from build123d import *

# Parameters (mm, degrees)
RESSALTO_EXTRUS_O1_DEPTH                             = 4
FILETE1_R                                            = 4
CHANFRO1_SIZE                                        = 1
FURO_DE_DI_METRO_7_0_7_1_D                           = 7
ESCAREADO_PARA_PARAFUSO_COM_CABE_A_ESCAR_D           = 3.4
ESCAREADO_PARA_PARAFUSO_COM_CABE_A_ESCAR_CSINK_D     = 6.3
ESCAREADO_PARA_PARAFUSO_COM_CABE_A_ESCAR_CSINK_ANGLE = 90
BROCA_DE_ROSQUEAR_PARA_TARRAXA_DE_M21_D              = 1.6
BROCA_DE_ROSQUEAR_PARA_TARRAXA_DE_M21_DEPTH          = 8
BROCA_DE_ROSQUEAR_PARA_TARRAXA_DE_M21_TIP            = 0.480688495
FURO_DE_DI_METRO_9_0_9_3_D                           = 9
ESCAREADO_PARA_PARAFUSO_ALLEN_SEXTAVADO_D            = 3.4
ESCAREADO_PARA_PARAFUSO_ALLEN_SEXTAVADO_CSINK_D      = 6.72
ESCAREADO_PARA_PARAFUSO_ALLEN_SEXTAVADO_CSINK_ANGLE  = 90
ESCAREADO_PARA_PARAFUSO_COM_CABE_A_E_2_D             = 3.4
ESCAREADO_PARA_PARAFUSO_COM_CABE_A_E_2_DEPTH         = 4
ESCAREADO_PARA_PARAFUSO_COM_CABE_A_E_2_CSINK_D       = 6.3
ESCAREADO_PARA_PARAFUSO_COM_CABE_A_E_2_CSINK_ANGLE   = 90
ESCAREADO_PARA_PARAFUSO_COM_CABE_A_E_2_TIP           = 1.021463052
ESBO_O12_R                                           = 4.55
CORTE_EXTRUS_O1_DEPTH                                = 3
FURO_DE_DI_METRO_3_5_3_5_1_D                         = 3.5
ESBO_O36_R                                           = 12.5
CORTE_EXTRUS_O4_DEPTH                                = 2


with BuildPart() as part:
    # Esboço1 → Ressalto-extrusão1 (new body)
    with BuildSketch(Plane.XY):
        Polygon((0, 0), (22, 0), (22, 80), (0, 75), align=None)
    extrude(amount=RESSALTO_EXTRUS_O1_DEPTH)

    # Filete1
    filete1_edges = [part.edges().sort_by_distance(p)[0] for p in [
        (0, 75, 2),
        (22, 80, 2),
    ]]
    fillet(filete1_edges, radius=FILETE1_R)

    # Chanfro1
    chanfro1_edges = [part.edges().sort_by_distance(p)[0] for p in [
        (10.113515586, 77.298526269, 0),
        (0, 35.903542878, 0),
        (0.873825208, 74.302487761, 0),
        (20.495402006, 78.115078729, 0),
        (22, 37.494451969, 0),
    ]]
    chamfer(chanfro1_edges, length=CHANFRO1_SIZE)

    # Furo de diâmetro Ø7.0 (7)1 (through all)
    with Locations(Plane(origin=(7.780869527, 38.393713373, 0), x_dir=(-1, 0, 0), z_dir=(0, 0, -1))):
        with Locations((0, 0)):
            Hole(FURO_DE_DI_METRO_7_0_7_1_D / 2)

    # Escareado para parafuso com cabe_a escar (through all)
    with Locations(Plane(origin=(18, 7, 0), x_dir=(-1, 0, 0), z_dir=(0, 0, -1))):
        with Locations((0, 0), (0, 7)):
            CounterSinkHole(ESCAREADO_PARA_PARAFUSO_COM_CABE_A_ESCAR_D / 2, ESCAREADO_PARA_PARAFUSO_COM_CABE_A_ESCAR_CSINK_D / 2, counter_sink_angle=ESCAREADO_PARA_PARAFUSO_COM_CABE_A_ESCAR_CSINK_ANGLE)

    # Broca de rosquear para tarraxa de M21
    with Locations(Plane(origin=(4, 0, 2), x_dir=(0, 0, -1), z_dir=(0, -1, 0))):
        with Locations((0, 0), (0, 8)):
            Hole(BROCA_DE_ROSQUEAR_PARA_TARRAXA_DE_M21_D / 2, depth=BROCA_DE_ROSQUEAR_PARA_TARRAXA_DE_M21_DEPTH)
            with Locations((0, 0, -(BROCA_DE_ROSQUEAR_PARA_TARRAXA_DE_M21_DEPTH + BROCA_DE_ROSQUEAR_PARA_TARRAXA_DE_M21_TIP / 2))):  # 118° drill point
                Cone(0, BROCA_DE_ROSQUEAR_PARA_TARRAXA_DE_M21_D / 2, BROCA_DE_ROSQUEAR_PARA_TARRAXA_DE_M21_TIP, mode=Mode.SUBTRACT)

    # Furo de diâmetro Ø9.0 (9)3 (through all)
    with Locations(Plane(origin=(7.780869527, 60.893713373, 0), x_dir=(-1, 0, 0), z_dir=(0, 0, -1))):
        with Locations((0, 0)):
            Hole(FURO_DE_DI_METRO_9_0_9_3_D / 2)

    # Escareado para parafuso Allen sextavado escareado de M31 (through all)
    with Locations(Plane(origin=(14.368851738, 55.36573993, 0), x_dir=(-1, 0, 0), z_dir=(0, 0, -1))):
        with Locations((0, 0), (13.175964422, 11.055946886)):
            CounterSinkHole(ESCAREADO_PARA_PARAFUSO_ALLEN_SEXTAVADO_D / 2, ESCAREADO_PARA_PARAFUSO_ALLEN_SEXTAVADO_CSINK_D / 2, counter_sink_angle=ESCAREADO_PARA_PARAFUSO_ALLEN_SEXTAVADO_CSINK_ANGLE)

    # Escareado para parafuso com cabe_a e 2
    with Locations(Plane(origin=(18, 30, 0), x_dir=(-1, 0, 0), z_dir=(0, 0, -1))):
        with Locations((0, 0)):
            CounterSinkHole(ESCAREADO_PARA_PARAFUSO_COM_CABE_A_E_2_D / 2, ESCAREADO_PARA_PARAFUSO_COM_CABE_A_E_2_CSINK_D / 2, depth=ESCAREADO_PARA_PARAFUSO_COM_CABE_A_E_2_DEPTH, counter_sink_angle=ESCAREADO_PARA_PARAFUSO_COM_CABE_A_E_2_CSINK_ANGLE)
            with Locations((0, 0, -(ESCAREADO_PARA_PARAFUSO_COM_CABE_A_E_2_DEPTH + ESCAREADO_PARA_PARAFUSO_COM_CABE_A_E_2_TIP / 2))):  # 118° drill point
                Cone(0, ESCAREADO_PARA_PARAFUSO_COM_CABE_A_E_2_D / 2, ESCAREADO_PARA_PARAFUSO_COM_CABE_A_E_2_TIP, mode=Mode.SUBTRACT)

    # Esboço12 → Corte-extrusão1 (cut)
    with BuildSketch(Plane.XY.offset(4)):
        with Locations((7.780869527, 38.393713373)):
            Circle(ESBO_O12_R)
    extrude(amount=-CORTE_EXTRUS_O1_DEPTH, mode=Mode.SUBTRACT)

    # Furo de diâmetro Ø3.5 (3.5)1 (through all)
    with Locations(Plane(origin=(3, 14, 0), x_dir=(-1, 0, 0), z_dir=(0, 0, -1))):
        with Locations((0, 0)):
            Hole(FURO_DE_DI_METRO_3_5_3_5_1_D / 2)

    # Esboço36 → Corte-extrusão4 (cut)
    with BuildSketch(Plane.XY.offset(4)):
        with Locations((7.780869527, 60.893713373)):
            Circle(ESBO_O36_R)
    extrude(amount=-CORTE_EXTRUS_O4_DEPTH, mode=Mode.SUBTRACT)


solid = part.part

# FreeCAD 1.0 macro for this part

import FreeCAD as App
import Part
import Sketcher


def edges_at(feature, points):
    """Names of the edges that pass closest to the given points."""
    edges = feature.Shape.Edges
    near = lambda p: min(range(len(edges)), key=lambda i: edges[i].distToShape(Part.Vertex(*p))[0])
    return sorted({f"Edge{near(p) + 1}" for p in points})

doc = App.newDocument("Part")
body = doc.addObject("PartDesign::Body", "Body")

sketch1 = body.newObject("Sketcher::SketchObject", "Sketch")
sketch1.AttachmentSupport = (doc.getObject("XY_Plane"), [""])
sketch1.MapMode = "FlatFace"
sketch1.addGeometry(Part.LineSegment(App.Vector(0, 0, 0), App.Vector(22, 0, 0)), False)
sketch1.addGeometry(Part.LineSegment(App.Vector(22, 0, 0), App.Vector(22, 80, 0)), False)
sketch1.addGeometry(Part.LineSegment(App.Vector(22, 80, 0), App.Vector(0, 75, 0)), False)
sketch1.addGeometry(Part.LineSegment(App.Vector(0, 75, 0), App.Vector(0, 0, 0)), False)
sketch1.addConstraint(Sketcher.Constraint("Coincident", 0, 2, 1, 1))
sketch1.addConstraint(Sketcher.Constraint("Coincident", 1, 2, 2, 1))
sketch1.addConstraint(Sketcher.Constraint("Coincident", 2, 2, 3, 1))
sketch1.addConstraint(Sketcher.Constraint("Coincident", 3, 2, 0, 1))
sketch1.addConstraint(Sketcher.Constraint("Horizontal", 0))
sketch1.addConstraint(Sketcher.Constraint("Vertical", 1))
sketch1.addConstraint(Sketcher.Constraint("Vertical", 3))
sketch1.addConstraint(Sketcher.Constraint("Coincident", 3, 2, -1, 1))
sketch1.addConstraint(Sketcher.Constraint("DistanceX", 0, 1, 0, 2, 22.0))
sketch1.addConstraint(Sketcher.Constraint("DistanceY", 1, 1, 1, 2, 80.0))
sketch1.addConstraint(Sketcher.Constraint("DistanceY", 3, 2, 3, 1, 75.0))
pad1 = body.newObject("PartDesign::Pad", "Pad")
pad1.Profile = sketch1
pad1.Length = 4
doc.recompute()

fillet = body.newObject("PartDesign::Fillet", "Fillet")
fillet.Base = (pad1, edges_at(pad1, [(0, 75, 2), (22, 80, 2)]))
fillet.Radius = 4
doc.recompute()

chamfer = body.newObject("PartDesign::Chamfer", "Chamfer")
chamfer.Base = (fillet, edges_at(fillet, [
    (10.114, 77.299, 0),
    (0, 35.904, 0),
    (0.874, 74.302, 0),
    (20.495, 78.115, 0),
    (22, 37.494, 0),
]))
chamfer.Size = 1

sketch2 = body.newObject("Sketcher::SketchObject", "Sketch001")
sketch2.AttachmentSupport = (doc.getObject("XY_Plane"), [""])
sketch2.MapMode = "FlatFace"
sketch2.addGeometry(Part.Circle(App.Vector(7.8, 38.4, 0), App.Vector(0, 0, 1), 3.5), False)
sketch2.addConstraint(Sketcher.Constraint("Diameter", 0, 7.0))
sketch2.addConstraint(Sketcher.Constraint("DistanceX", -1, 1, 0, 3, 7.78087))
sketch2.addConstraint(Sketcher.Constraint("DistanceY", -1, 1, 0, 3, 38.393713))
doc.recompute()
hole = body.newObject("PartDesign::Hole", "Hole")
hole.Profile = sketch2
hole.ThreadType = "None"
hole.Diameter = 7
hole.DepthType = "ThroughAll"
hole.Reversed = True

sketch3 = body.newObject("Sketcher::SketchObject", "Sketch002")
sketch3.AttachmentSupport = (doc.getObject("XY_Plane"), [""])
sketch3.MapMode = "FlatFace"
sketch3.addGeometry(Part.Circle(App.Vector(18, 7, 0), App.Vector(0, 0, 1), 1.7), False)
sketch3.addGeometry(Part.Circle(App.Vector(18, 14, 0), App.Vector(0, 0, 1), 1.7), False)
sketch3.addConstraint(Sketcher.Constraint("Equal", 0, 1))
sketch3.addConstraint(Sketcher.Constraint("Vertical", 0, 3, 1, 3))
sketch3.addConstraint(Sketcher.Constraint("Diameter", 0, 3.4))
sketch3.addConstraint(Sketcher.Constraint("DistanceX", -1, 1, 0, 3, 18.0))
sketch3.addConstraint(Sketcher.Constraint("DistanceY", -1, 1, 0, 3, 7.0))
sketch3.addConstraint(Sketcher.Constraint("DistanceY", -1, 1, 1, 3, 14.0))
doc.recompute()
hole2 = body.newObject("PartDesign::Hole", "Hole001")
hole2.Profile = sketch3
hole2.ThreadType = "None"
hole2.Diameter = 3.4
hole2.DepthType = "ThroughAll"
hole2.HoleCutType = "Countersink"
hole2.HoleCutDiameter = 6.3
hole2.HoleCutCountersinkAngle = 90
hole2.Reversed = True

sketch4 = body.newObject("Sketcher::SketchObject", "Sketch003")
sketch4.AttachmentSupport = (doc.getObject("XZ_Plane"), [""])
sketch4.MapMode = "FlatFace"
sketch4.addGeometry(Part.Circle(App.Vector(4, 2, 0), App.Vector(0, 0, 1), 0.8), False)
sketch4.addGeometry(Part.Circle(App.Vector(12, 2, 0), App.Vector(0, 0, 1), 0.8), False)
sketch4.addConstraint(Sketcher.Constraint("Equal", 0, 1))
sketch4.addConstraint(Sketcher.Constraint("Horizontal", 0, 3, 1, 3))
sketch4.addConstraint(Sketcher.Constraint("Diameter", 0, 1.6))
sketch4.addConstraint(Sketcher.Constraint("DistanceX", -1, 1, 0, 3, 4.0))
sketch4.addConstraint(Sketcher.Constraint("DistanceY", -1, 1, 0, 3, 2.0))
sketch4.addConstraint(Sketcher.Constraint("DistanceX", -1, 1, 1, 3, 12.0))
doc.recompute()
hole3 = body.newObject("PartDesign::Hole", "Hole002")
hole3.Profile = sketch4
hole3.ThreadType = "None"
hole3.Diameter = 1.6
hole3.DepthType = "Dimension"
hole3.Depth = 8
hole3.DrillPoint = "Angled"
hole3.DrillPointAngle = 118

sketch5 = body.newObject("Sketcher::SketchObject", "Sketch004")
sketch5.AttachmentSupport = (doc.getObject("XY_Plane"), [""])
sketch5.MapMode = "FlatFace"
sketch5.addGeometry(Part.Circle(App.Vector(7.8, 60.9, 0), App.Vector(0, 0, 1), 4.5), False)
sketch5.addConstraint(Sketcher.Constraint("Diameter", 0, 9.0))
sketch5.addConstraint(Sketcher.Constraint("DistanceX", -1, 1, 0, 3, 7.78087))
sketch5.addConstraint(Sketcher.Constraint("DistanceY", -1, 1, 0, 3, 60.893713))
doc.recompute()
hole4 = body.newObject("PartDesign::Hole", "Hole003")
hole4.Profile = sketch5
hole4.ThreadType = "None"
hole4.Diameter = 9
hole4.DepthType = "ThroughAll"
hole4.Reversed = True

sketch6 = body.newObject("Sketcher::SketchObject", "Sketch005")
sketch6.AttachmentSupport = (doc.getObject("XY_Plane"), [""])
sketch6.MapMode = "FlatFace"
sketch6.addGeometry(Part.Circle(App.Vector(14.4, 55.4, 0), App.Vector(0, 0, 1), 1.7), False)
sketch6.addGeometry(Part.Circle(App.Vector(1.2, 66.4, 0), App.Vector(0, 0, 1), 1.7), False)
sketch6.addConstraint(Sketcher.Constraint("Equal", 0, 1))
sketch6.addConstraint(Sketcher.Constraint("Diameter", 0, 3.4))
sketch6.addConstraint(Sketcher.Constraint("DistanceX", -1, 1, 0, 3, 14.368852))
sketch6.addConstraint(Sketcher.Constraint("DistanceY", -1, 1, 0, 3, 55.36574))
sketch6.addConstraint(Sketcher.Constraint("DistanceX", -1, 1, 1, 3, 1.192887))
sketch6.addConstraint(Sketcher.Constraint("DistanceY", -1, 1, 1, 3, 66.421687))
doc.recompute()
hole5 = body.newObject("PartDesign::Hole", "Hole004")
hole5.Profile = sketch6
hole5.ThreadType = "None"
hole5.Diameter = 3.4
hole5.DepthType = "ThroughAll"
hole5.HoleCutType = "Countersink"
hole5.HoleCutDiameter = 6.72
hole5.HoleCutCountersinkAngle = 90
hole5.Reversed = True

sketch7 = body.newObject("Sketcher::SketchObject", "Sketch006")
sketch7.AttachmentSupport = (doc.getObject("XY_Plane"), [""])
sketch7.MapMode = "FlatFace"
sketch7.addGeometry(Part.Circle(App.Vector(18, 30, 0), App.Vector(0, 0, 1), 1.7), False)
sketch7.addConstraint(Sketcher.Constraint("Diameter", 0, 3.4))
sketch7.addConstraint(Sketcher.Constraint("DistanceX", -1, 1, 0, 3, 18.0))
sketch7.addConstraint(Sketcher.Constraint("DistanceY", -1, 1, 0, 3, 30.0))
doc.recompute()
hole6 = body.newObject("PartDesign::Hole", "Hole005")
hole6.Profile = sketch7
hole6.ThreadType = "None"
hole6.Diameter = 3.4
hole6.DepthType = "Dimension"
hole6.Depth = 4
hole6.DrillPoint = "Angled"
hole6.DrillPointAngle = 118
hole6.HoleCutType = "Countersink"
hole6.HoleCutDiameter = 6.3
hole6.HoleCutCountersinkAngle = 90
hole6.Reversed = True

sketch8 = body.newObject("Sketcher::SketchObject", "Sketch007")
sketch8.AttachmentSupport = (doc.getObject("XY_Plane"), [""])
sketch8.MapMode = "FlatFace"
sketch8.AttachmentOffset = App.Placement(App.Vector(0, 0, 4), App.Rotation())
sketch8.addGeometry(Part.Circle(App.Vector(7.8, 38.4, 0), App.Vector(0, 0, 1), 4.5), False)
sketch8.addConstraint(Sketcher.Constraint("Diameter", 0, 9.1))
sketch8.addConstraint(Sketcher.Constraint("DistanceX", -1, 1, 0, 3, 7.78087))
sketch8.addConstraint(Sketcher.Constraint("DistanceY", -1, 1, 0, 3, 38.393713))
pocket1 = body.newObject("PartDesign::Pocket", "Pocket")
pocket1.Profile = sketch8
pocket1.Length = 3

sketch9 = body.newObject("Sketcher::SketchObject", "Sketch008")
sketch9.AttachmentSupport = (doc.getObject("XY_Plane"), [""])
sketch9.MapMode = "FlatFace"
sketch9.addGeometry(Part.Circle(App.Vector(3, 14, 0), App.Vector(0, 0, 1), 1.8), False)
sketch9.addConstraint(Sketcher.Constraint("Diameter", 0, 3.5))
sketch9.addConstraint(Sketcher.Constraint("DistanceX", -1, 1, 0, 3, 3.0))
sketch9.addConstraint(Sketcher.Constraint("DistanceY", -1, 1, 0, 3, 14.0))
doc.recompute()
hole7 = body.newObject("PartDesign::Hole", "Hole006")
hole7.Profile = sketch9
hole7.ThreadType = "None"
hole7.Diameter = 3.5
hole7.DepthType = "ThroughAll"
hole7.Reversed = True

sketch10 = body.newObject("Sketcher::SketchObject", "Sketch009")
sketch10.AttachmentSupport = (doc.getObject("XY_Plane"), [""])
sketch10.MapMode = "FlatFace"
sketch10.AttachmentOffset = App.Placement(App.Vector(0, 0, 4), App.Rotation())
sketch10.addGeometry(Part.Circle(App.Vector(8, 61, 0), App.Vector(0, 0, 1), 12), False)
sketch10.addConstraint(Sketcher.Constraint("Diameter", 0, 25.0))
sketch10.addConstraint(Sketcher.Constraint("DistanceX", -1, 1, 0, 3, 7.78087))
sketch10.addConstraint(Sketcher.Constraint("DistanceY", -1, 1, 0, 3, 60.893713))
pocket2 = body.newObject("PartDesign::Pocket", "Pocket001")
pocket2.Profile = sketch10
pocket2.Length = 2

doc.recompute()
